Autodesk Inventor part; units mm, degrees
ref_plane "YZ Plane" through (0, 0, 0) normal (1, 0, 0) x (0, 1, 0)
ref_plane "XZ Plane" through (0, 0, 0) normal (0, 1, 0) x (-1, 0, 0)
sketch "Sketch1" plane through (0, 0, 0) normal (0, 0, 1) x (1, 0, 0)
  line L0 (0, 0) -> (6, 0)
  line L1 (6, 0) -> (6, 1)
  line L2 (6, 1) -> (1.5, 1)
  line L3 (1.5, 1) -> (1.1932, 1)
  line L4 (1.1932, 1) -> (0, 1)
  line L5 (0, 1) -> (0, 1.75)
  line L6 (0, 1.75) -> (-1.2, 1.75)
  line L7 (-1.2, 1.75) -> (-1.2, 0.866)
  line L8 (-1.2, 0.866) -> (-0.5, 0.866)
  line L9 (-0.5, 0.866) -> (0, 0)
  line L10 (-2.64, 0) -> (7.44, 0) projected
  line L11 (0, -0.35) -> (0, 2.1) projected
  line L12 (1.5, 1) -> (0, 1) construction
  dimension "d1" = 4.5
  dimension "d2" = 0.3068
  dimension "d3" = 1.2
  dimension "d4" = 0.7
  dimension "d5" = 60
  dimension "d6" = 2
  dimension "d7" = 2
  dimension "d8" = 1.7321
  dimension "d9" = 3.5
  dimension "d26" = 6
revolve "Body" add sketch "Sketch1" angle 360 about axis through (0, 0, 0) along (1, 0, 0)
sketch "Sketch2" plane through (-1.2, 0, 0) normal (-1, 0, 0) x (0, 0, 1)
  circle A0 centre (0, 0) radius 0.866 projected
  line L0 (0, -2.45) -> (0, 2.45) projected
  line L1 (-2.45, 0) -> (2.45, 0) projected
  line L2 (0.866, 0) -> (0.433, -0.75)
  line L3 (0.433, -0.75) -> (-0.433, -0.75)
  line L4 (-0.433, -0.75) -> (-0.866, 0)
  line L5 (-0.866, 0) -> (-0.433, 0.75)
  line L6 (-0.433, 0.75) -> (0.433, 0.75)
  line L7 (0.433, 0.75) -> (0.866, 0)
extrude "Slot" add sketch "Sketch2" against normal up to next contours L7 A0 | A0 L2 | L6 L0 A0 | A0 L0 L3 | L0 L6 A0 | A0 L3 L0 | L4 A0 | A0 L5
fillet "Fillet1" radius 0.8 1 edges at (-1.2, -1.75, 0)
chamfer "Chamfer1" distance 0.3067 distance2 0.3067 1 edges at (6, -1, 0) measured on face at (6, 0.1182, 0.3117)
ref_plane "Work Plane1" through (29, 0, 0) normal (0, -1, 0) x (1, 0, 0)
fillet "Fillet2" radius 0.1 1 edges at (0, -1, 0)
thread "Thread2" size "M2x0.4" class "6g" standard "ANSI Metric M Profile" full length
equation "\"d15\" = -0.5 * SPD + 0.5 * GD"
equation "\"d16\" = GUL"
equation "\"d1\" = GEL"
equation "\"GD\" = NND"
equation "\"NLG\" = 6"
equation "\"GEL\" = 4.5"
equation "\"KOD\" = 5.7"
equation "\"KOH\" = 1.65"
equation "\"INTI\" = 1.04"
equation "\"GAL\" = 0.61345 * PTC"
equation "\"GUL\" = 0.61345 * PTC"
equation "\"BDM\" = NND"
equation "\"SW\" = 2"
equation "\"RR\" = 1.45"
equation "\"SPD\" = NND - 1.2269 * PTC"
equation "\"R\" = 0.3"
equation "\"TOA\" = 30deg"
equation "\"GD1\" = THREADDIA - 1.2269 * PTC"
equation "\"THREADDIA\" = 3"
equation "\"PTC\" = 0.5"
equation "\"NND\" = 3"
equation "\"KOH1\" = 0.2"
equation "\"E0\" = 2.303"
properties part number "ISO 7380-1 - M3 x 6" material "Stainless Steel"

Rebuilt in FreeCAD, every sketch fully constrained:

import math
import FreeCAD as App
import Part
import Sketcher

V = App.Vector
Q = App.Units.Quantity


def edges_at(feature, points):
    """Names of the edges that pass closest to the given points."""
    edges = feature.Shape.Edges
    near = lambda p: min(range(len(edges)), key=lambda i: edges[i].distToShape(Part.Vertex(*p))[0])
    return sorted({f"Edge{near(p) + 1}" for p in points})

doc = App.newDocument("Part")
body = doc.addObject("PartDesign::Body", "Body")

# Sketch on XY plane
sketch1 = body.newObject("Sketcher::SketchObject", "Sketch")
sketch1.AttachmentSupport = (doc.getObject("XY_Plane"), [""])
sketch1.MapMode = "FlatFace"
sketch1.addGeometry(Part.LineSegment(V(0, 1, 0), V(0, 1.75, 0)), False)
sketch1.addGeometry(Part.LineSegment(V(0, 1.75, 0), V(-1.2, 1.75, 0)), False)
sketch1.addGeometry(Part.LineSegment(V(-1.2, 1.75, 0), V(-1.2, 0.866, 0)), False)
sketch1.addGeometry(Part.LineSegment(V(-1.2, 0.866, 0), V(-0.5, 0.866, 0)), False)
sketch1.addGeometry(Part.LineSegment(V(-0.5, 0.866, 0), V(0, 0, 0)), False)
sketch1.addGeometry(Part.LineSegment(V(0, 0, 0), V(6, 0, 0)), False)
sketch1.addGeometry(Part.LineSegment(V(6, 0, 0), V(6, 1, 0)), False)
sketch1.addGeometry(Part.LineSegment(V(6, 1, 0), V(0, 1, 0)), False)
sketch1.addConstraint(Sketcher.Constraint("Coincident", 0, 2, 1, 1))
sketch1.addConstraint(Sketcher.Constraint("Coincident", 1, 2, 2, 1))
sketch1.addConstraint(Sketcher.Constraint("Coincident", 2, 2, 3, 1))
sketch1.addConstraint(Sketcher.Constraint("Coincident", 3, 2, 4, 1))
sketch1.addConstraint(Sketcher.Constraint("Coincident", 4, 2, 5, 1))
sketch1.addConstraint(Sketcher.Constraint("Coincident", 5, 2, 6, 1))
sketch1.addConstraint(Sketcher.Constraint("Coincident", 6, 2, 7, 1))
sketch1.addConstraint(Sketcher.Constraint("Coincident", 7, 2, 0, 1))
sketch1.addConstraint(Sketcher.Constraint("Vertical", 0))
sketch1.addConstraint(Sketcher.Constraint("Horizontal", 1))
sketch1.addConstraint(Sketcher.Constraint("Vertical", 2))
sketch1.addConstraint(Sketcher.Constraint("Horizontal", 3))
sketch1.addConstraint(Sketcher.Constraint("Horizontal", 5))
sketch1.addConstraint(Sketcher.Constraint("Vertical", 6))
sketch1.addConstraint(Sketcher.Constraint("Horizontal", 7))
sketch1.addConstraint(Sketcher.Constraint("Coincident", 4, 2, -1, 1))
sketch1.addConstraint(Sketcher.Constraint("PointOnObject", 0, 2, -2))
sketch1.addConstraint(Sketcher.Constraint("DistanceX", 5, 1, 5, 2, 6.0))
sketch1.addConstraint(Sketcher.Constraint("DistanceX", 1, 2, 1, 1, 1.2))
sketch1.addConstraint(Sketcher.Constraint("DistanceX", 3, 1, 3, 2, 0.7))
sketch1.addConstraint(Sketcher.Constraint("DistanceY", 6, 1, 6, 2, 1.0))
sketch1.addConstraint(Sketcher.Constraint("Angle", 4, Q("-59.9993 deg")))
sketch1.addConstraint(Sketcher.Constraint("DistanceY", 0, 1, 0, 2, 0.75))
revolution = body.newObject("PartDesign::Revolution", "Revolution")
revolution.Profile = sketch1
revolution.ReferenceAxis = (sketch1, ["H_Axis"])
revolution.Angle = 360

# Sketch on YZ plane
sketch2 = body.newObject("Sketcher::SketchObject", "Sketch001")
sketch2.AttachmentSupport = (doc.getObject("YZ_Plane"), [""])
sketch2.MapMode = "FlatFace"
sketch2.AttachmentOffset = App.Placement(V(0, 0, -1.2), App.Rotation())
sketch2.addGeometry(Part.LineSegment(V(0.75, 0.433, 0), V(0, 0.866, 0)), False)
sketch2.addGeometry(Part.ArcOfCircle(Part.Circle(V(0, 0, 0), V(0, 0, 1), 0.866), math.radians(29.999272), math.radians(90)), False)
sketch2.addGeometry(Part.ArcOfCircle(Part.Circle(V(0, 0, 0), V(0, 0, 1), 0.866), math.radians(90), math.radians(150.000728)), False)
sketch2.addGeometry(Part.LineSegment(V(0, 0.866, 0), V(-0.75, 0.433, 0)), False)
sketch2.addGeometry(Part.ArcOfCircle(Part.Circle(V(0, 0, 0), V(0, 0, 1), 0.866), math.radians(-29.999272), math.radians(29.999272)), False)
sketch2.addGeometry(Part.LineSegment(V(0.75, 0.433, 0), V(0.75, -0.433, 0)), False)
sketch2.addGeometry(Part.LineSegment(V(-0.75, 0.433, 0), V(-0.75, -0.433, 0)), False)
sketch2.addGeometry(Part.ArcOfCircle(Part.Circle(V(0, 0, 0), V(0, 0, 1), 0.866), math.radians(150.000728), math.radians(209.999272)), False)
sketch2.addGeometry(Part.LineSegment(V(-0.75, -0.433, 0), V(0, -0.866, 0)), False)
sketch2.addGeometry(Part.ArcOfCircle(Part.Circle(V(0, 0, 0), V(0, 0, 1), 0.866), math.radians(-150.000728), math.radians(-90)), False)
sketch2.addGeometry(Part.ArcOfCircle(Part.Circle(V(0, 0, 0), V(0, 0, 1), 0.866), math.radians(-90), math.radians(-29.999272)), False)
sketch2.addGeometry(Part.LineSegment(V(0, -0.866, 0), V(0.75, -0.433, 0)), False)
sketch2.addConstraint(Sketcher.Constraint("Coincident", 0, 1, 1, 1))
sketch2.addConstraint(Sketcher.Constraint("Coincident", 1, 2, 0, 2))
sketch2.addConstraint(Sketcher.Constraint("Coincident", 2, 1, 3, 1))
sketch2.addConstraint(Sketcher.Constraint("Coincident", 3, 2, 2, 2))
sketch2.addConstraint(Sketcher.Constraint("Coincident", 4, 1, 5, 2))
sketch2.addConstraint(Sketcher.Constraint("Coincident", 5, 1, 4, 2))
sketch2.addConstraint(Sketcher.Constraint("Coincident", 6, 1, 7, 1))
sketch2.addConstraint(Sketcher.Constraint("Coincident", 7, 2, 6, 2))
sketch2.addConstraint(Sketcher.Constraint("Coincident", 8, 1, 9, 1))
sketch2.addConstraint(Sketcher.Constraint("Coincident", 9, 2, 8, 2))
sketch2.addConstraint(Sketcher.Constraint("Coincident", 10, 1, 11, 1))
sketch2.addConstraint(Sketcher.Constraint("Coincident", 11, 2, 10, 2))
sketch2.addConstraint(Sketcher.Constraint("Vertical", 5))
sketch2.addConstraint(Sketcher.Constraint("Vertical", 6))
sketch2.addConstraint(Sketcher.Constraint("Coincident", 1, 3, -1, 1))
sketch2.addConstraint(Sketcher.Constraint("Coincident", 2, 3, -1, 1))
sketch2.addConstraint(Sketcher.Constraint("Coincident", 4, 3, -1, 1))
sketch2.addConstraint(Sketcher.Constraint("Coincident", 7, 3, -1, 1))
sketch2.addConstraint(Sketcher.Constraint("Coincident", 9, 3, -1, 1))
sketch2.addConstraint(Sketcher.Constraint("Coincident", 10, 3, -1, 1))
sketch2.addConstraint(Sketcher.Constraint("Coincident", 2, 1, 1, 2))
sketch2.addConstraint(Sketcher.Constraint("Coincident", 5, 1, 0, 1))
sketch2.addConstraint(Sketcher.Constraint("Coincident", 6, 1, 3, 2))
sketch2.addConstraint(Sketcher.Constraint("Coincident", 8, 1, 7, 2))
sketch2.addConstraint(Sketcher.Constraint("Coincident", 10, 1, 9, 2))
sketch2.addConstraint(Sketcher.Constraint("PointOnObject", 1, 2, -2))
sketch2.addConstraint(Sketcher.Constraint("PointOnObject", 9, 2, -2))
sketch2.addConstraint(Sketcher.Constraint("Parallel", 0, 8))
sketch2.addConstraint(Sketcher.Constraint("Parallel", 3, 11))
sketch2.addConstraint(Sketcher.Constraint("Angle", 0, Q("150.0007 deg")))
sketch2.addConstraint(Sketcher.Constraint("Radius", 1, 0.866))
pad1 = body.newObject("PartDesign::Pad", "Pad")
pad1.Profile = sketch2
pad1.Length = 0.767
doc.recompute()

fillet = body.newObject("PartDesign::Fillet", "Fillet")
fillet.Base = (pad1, edges_at(pad1, [(-1.2, -1.75, 0)]))
fillet.Radius = 0.8
doc.recompute()

chamfer = body.newObject("PartDesign::Chamfer", "Chamfer")
chamfer.Base = (fillet, edges_at(fillet, [(6, -1, 0)]))
chamfer.ChamferType = "Two distances"
chamfer.Size = 0.3067
chamfer.Size2 = 0.3067
doc.recompute()

fillet2 = body.newObject("PartDesign::Fillet", "Fillet001")
fillet2.Base = (chamfer, edges_at(chamfer, [(0, -1, 0)]))
fillet2.Radius = 0.1

doc.recompute()
